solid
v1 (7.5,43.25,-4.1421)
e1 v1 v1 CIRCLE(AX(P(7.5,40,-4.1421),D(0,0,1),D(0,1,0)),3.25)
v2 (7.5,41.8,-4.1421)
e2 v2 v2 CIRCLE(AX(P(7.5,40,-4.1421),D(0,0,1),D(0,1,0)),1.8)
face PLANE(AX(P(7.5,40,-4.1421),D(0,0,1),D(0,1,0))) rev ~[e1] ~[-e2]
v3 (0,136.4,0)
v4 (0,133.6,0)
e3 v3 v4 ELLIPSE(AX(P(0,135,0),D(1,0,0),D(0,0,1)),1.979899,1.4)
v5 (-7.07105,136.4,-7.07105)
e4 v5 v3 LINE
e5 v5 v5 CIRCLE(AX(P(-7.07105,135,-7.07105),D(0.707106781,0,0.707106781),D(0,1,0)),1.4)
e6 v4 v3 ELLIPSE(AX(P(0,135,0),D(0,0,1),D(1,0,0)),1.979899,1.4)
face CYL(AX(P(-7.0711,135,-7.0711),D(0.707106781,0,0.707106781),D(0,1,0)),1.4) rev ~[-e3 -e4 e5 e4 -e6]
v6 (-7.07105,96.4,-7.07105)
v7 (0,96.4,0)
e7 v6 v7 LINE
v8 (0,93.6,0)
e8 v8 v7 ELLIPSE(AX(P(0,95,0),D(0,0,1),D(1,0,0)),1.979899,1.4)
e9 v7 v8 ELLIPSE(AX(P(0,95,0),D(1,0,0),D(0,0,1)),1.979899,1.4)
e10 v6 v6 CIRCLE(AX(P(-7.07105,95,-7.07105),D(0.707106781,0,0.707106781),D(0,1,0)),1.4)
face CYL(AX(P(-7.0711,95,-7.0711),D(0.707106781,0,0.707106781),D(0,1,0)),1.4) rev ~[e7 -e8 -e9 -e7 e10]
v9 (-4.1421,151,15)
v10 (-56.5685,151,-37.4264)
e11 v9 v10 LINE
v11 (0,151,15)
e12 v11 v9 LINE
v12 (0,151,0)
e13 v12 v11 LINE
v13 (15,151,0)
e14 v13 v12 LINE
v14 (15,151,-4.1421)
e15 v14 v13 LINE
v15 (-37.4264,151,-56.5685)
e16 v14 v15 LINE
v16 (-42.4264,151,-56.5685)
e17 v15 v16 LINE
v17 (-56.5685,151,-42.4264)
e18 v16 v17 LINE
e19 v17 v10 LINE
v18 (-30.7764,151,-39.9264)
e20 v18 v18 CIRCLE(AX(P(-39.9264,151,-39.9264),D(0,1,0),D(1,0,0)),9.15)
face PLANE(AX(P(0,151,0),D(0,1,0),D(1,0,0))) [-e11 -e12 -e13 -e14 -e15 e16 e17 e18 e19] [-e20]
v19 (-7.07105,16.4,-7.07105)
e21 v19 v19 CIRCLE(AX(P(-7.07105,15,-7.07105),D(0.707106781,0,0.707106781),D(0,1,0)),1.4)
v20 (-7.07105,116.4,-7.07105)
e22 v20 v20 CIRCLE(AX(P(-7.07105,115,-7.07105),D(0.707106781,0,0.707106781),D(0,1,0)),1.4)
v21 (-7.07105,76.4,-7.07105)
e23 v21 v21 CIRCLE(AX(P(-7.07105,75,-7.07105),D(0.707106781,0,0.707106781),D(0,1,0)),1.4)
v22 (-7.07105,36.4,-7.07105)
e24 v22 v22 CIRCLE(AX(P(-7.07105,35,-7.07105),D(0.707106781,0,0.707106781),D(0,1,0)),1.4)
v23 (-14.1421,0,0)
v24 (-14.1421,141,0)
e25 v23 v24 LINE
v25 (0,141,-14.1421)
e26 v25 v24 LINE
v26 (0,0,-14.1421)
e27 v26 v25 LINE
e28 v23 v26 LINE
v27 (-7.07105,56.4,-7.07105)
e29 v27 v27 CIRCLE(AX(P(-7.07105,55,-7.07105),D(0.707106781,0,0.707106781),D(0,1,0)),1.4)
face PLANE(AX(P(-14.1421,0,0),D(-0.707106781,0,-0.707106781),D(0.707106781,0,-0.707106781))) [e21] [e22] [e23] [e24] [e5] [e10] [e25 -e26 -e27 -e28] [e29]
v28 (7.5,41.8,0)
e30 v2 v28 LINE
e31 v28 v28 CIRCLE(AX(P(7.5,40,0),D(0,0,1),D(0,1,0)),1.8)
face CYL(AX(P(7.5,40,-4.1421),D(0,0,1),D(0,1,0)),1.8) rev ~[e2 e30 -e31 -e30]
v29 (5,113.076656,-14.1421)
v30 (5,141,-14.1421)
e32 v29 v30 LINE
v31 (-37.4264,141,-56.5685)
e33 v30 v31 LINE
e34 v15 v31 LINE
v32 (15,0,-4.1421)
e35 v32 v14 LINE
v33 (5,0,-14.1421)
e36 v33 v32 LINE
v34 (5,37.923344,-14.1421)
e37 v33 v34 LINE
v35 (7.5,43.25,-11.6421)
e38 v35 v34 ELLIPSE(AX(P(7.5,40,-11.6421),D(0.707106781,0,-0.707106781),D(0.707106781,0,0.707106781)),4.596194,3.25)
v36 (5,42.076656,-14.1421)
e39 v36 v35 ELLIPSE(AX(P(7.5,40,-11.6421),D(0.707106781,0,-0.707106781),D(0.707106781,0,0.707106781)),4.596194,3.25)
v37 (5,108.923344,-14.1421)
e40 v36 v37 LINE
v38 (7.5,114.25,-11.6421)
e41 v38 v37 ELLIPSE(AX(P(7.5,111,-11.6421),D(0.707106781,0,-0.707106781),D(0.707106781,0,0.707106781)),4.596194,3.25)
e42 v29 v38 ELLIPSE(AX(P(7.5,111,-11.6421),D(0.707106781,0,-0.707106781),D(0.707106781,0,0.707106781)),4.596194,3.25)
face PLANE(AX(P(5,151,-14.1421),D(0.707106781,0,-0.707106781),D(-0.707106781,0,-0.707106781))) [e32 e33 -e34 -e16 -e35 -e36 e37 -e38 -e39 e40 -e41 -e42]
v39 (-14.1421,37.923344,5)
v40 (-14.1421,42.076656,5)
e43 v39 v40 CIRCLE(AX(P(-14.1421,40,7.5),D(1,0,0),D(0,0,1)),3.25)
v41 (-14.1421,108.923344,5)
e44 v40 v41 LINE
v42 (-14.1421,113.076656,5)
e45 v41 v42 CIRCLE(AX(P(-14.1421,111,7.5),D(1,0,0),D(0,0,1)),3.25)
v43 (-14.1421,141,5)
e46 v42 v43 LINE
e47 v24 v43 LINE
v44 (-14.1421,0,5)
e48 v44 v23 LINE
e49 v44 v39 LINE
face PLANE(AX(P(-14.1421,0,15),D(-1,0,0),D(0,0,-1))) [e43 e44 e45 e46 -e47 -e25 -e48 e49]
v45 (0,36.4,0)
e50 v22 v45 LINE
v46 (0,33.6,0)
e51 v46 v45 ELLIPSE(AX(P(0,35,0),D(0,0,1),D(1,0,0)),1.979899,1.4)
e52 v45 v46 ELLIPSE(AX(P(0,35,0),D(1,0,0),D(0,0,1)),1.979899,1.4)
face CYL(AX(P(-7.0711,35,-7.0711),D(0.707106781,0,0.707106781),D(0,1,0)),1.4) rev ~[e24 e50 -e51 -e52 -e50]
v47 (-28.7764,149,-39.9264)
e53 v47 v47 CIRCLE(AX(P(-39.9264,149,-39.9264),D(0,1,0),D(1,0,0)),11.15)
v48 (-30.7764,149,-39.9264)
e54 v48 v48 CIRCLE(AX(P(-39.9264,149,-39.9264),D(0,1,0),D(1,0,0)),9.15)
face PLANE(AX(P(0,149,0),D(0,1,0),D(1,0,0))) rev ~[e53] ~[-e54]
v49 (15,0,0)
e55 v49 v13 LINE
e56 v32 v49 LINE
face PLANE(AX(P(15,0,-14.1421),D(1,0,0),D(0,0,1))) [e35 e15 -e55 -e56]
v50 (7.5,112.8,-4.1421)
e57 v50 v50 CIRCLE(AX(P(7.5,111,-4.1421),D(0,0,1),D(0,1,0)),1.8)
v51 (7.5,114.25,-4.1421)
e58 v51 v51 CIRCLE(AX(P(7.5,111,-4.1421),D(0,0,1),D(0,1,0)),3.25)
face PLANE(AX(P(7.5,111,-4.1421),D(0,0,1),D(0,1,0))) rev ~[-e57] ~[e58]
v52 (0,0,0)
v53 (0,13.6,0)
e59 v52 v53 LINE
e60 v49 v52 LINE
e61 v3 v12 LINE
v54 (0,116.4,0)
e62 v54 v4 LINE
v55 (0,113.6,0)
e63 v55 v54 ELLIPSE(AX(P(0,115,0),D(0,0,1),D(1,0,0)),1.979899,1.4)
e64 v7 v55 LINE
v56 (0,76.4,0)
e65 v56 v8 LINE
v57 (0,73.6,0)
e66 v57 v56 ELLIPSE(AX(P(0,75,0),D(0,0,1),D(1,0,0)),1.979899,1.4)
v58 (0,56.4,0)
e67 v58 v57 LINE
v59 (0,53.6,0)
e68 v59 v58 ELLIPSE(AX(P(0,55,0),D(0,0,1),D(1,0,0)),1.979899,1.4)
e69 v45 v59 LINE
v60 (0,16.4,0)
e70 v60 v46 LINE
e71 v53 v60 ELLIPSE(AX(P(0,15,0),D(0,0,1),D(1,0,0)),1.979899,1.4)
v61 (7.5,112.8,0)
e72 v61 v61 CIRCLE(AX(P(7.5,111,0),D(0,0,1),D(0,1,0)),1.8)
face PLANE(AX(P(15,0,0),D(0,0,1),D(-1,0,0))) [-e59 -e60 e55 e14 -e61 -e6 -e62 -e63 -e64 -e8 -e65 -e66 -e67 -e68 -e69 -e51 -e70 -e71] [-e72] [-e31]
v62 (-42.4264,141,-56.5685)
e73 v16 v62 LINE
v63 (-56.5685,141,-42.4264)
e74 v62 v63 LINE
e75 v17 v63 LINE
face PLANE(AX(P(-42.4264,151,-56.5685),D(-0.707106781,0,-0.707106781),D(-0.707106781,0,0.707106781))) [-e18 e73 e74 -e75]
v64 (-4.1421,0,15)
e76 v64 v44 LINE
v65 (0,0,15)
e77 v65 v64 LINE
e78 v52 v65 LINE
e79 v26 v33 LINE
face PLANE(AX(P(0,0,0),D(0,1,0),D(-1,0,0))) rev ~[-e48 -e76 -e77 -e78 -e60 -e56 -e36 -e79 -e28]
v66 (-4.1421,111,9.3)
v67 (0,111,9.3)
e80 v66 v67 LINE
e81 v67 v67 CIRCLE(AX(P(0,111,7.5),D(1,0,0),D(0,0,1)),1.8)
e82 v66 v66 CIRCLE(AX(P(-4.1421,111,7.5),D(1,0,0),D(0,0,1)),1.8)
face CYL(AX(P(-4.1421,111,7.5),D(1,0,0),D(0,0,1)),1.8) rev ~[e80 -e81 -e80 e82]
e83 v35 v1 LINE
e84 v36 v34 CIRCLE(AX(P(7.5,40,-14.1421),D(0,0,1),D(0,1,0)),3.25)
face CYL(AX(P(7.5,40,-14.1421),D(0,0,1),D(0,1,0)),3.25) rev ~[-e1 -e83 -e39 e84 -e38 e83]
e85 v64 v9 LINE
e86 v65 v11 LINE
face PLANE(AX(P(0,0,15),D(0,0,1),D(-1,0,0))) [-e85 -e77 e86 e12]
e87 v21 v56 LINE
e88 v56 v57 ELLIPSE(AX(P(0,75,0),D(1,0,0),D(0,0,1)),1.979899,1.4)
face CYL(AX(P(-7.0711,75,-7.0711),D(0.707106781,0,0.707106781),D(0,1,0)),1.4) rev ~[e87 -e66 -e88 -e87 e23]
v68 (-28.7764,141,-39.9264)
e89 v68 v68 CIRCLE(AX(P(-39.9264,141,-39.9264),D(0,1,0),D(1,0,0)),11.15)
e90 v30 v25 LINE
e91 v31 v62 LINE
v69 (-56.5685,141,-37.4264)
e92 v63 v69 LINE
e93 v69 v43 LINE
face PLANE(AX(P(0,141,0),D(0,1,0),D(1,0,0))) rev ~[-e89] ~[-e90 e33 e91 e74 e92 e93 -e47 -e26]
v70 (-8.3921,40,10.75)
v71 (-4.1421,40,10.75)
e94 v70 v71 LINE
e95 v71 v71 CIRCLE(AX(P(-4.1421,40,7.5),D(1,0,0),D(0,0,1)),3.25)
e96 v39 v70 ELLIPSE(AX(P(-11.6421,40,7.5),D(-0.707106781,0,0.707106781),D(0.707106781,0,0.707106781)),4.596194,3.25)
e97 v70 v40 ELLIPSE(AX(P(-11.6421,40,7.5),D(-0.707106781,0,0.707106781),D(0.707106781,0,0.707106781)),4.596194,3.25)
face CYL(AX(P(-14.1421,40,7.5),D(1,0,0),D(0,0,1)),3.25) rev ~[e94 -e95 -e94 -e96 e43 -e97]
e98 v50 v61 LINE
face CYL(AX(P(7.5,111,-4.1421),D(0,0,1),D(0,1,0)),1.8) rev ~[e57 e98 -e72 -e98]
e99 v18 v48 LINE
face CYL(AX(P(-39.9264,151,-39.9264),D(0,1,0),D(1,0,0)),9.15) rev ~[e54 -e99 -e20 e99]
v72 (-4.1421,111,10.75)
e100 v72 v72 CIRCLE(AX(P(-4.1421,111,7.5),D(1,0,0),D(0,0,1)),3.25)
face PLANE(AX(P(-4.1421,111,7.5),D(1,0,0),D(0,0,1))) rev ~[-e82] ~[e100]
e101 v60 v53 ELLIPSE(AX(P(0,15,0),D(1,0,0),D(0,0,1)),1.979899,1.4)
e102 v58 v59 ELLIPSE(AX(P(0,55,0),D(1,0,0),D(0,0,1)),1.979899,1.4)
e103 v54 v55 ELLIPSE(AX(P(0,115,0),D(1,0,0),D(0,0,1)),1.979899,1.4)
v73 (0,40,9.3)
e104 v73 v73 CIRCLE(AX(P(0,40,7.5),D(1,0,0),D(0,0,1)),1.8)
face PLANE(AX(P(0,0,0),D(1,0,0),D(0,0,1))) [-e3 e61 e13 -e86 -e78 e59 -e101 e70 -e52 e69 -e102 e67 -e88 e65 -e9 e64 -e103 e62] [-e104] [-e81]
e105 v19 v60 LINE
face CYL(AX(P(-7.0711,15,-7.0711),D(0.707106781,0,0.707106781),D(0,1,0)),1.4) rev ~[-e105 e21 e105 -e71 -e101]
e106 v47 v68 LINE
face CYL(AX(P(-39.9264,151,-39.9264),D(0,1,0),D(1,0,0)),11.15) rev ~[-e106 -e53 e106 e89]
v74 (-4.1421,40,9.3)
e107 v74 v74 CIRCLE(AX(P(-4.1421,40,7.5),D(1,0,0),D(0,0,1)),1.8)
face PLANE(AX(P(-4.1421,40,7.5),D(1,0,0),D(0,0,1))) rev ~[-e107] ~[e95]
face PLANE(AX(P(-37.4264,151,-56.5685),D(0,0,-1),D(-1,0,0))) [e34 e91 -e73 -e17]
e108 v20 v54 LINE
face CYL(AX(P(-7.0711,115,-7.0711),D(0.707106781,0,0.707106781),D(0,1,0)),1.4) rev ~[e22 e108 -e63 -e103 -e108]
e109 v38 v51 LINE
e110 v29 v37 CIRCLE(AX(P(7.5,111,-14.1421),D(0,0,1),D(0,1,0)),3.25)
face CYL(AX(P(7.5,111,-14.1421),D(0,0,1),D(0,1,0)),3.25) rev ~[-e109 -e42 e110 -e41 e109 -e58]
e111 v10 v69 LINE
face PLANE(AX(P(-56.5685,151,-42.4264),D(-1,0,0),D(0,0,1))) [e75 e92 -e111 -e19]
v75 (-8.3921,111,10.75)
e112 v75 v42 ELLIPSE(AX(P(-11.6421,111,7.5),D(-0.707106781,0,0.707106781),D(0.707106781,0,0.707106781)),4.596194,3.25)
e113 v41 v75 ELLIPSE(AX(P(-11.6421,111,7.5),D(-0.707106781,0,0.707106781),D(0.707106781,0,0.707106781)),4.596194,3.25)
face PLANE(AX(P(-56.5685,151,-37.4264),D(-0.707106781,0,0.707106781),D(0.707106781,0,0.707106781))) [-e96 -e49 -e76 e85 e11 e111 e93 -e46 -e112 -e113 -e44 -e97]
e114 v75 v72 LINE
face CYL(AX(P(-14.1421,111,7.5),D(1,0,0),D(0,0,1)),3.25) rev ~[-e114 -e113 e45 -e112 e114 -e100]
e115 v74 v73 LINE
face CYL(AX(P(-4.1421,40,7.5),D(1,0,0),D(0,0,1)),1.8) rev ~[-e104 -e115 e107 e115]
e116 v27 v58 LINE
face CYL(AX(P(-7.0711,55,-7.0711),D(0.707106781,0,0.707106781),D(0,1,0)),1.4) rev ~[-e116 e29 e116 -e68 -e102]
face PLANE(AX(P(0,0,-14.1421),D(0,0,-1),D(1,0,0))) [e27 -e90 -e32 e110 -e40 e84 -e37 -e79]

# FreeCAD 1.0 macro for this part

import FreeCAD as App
import Part
import Sketcher
Q = App.Units.Quantity


def edges_at(feature, points):
    """Names of the edges that pass closest to the given points."""
    edges = feature.Shape.Edges
    near = lambda p: min(range(len(edges)), key=lambda i: edges[i].distToShape(Part.Vertex(*p))[0])
    return sorted({f"Edge{near(p) + 1}" for p in points})


def add_polygon(sketch, points):
    """Adds a closed chain of lines whose ends are joined by coincident constraints."""
    first, n = sketch.GeometryCount, len(points)
    for a, b in zip(points, points[1:] + points[:1]):
        sketch.addGeometry(Part.LineSegment(App.Vector(*a, 0), App.Vector(*b, 0)), False)
    for i in range(n):
        sketch.addConstraint(Sketcher.Constraint("Coincident", first + i, 2, first + (i + 1) % n, 1))

doc = App.newDocument("Part")
params = doc.addObject("Spreadsheet::Sheet", "Params")
for row, (alias, value) in enumerate([
    ("sketch1_width", "15 mm"),
    ("sketch1_length", "20 mm"),
    ("pad1_length", "151 mm"),
    ("chamfer_size", "10 mm"),
    ("sketch2_diameter", "22.3 mm"),
    ("sketch2_length", "60 mm"),
    ("sketch2_width", "5 mm"),
    ("sketch2_length2", "20 mm"),
    ("pad2_length", "10 mm"),
    ("sketch3_diameter", "22.3 mm"),
    ("sketch3_diameter2", "18.3 mm"),
    ("pad3_length", "2 mm"),
    ("sketch4_diameter", "3.6 mm"),
    ("hole_diameter", "3.6 mm"),
    ("hole_cbore_diameter", "6.5 mm"),
    ("hole_cbore_depth", "10 mm"),
    ("sketch5_diameter", "3.6 mm"),
    ("hole2_diameter", "3.6 mm"),
    ("hole2_cbore_diameter", "6.5 mm"),
    ("hole2_cbore_depth", "10 mm"),
    ("sketch6_diameter", "2.8 mm"),
    ("hole3_diameter", "2.8 mm"),
], start=1):
    params.set(f"A{row}", alias)
    params.set(f"B{row}", "=" + value)
    params.setAlias(f"B{row}", alias)

body = doc.addObject("PartDesign::Body", "Body")

# Sketch on XZ plane
sketch1 = doc.addObject("Sketcher::SketchObject", "Sketch")
body.addObject(sketch1)
sketch1.AttachmentSupport = (doc.XZ_Plane, [""])
sketch1.MapMode = "FlatFace"
add_polygon(sketch1, [(0, 15), (0, 0), (15, 0), (15, -14), (0, -14), (-14, 0), (-14, 15)])  # lines 0-6
sketch1.addConstraint([
    Sketcher.Constraint("Vertical", 0),
    Sketcher.Constraint("Horizontal", 1),
    Sketcher.Constraint("Vertical", 2),
    Sketcher.Constraint("Horizontal", 3),
    Sketcher.Constraint("Vertical", 5),
    Sketcher.Constraint("Horizontal", 6),
    Sketcher.Constraint("Coincident", 0, 2, -1, 1),
    Sketcher.Constraint("PointOnObject", 3, 2, -2),
    Sketcher.Constraint("PointOnObject", 4, 2, -1),
    Sketcher.Constraint("Equal", 3, 0),
    Sketcher.Constraint("Equal", 6, 2),
    Sketcher.Constraint("DistanceX", 1, 1, 1, 2, 15.0),
    Sketcher.Constraint("Distance", 4, 20.0),
])
sketch1.setExpression("Constraints[18]", "Params.sketch1_width")
sketch1.setExpression("Constraints[19]", "Params.sketch1_length")
pad1 = doc.addObject("PartDesign::Pad", "Pad")
body.addObject(pad1)
pad1.Profile = sketch1
pad1.setExpression("Length", "Params.pad1_length")
pad1.Reversed = True
doc.recompute()

chamfer = doc.addObject("PartDesign::Chamfer", "Chamfer")
body.addObject(chamfer)
chamfer.Base = (pad1, edges_at(pad1, [(-14.142, 75.5, 15), (15, 75.5, -14.142)]))
chamfer.setExpression("Size", "Params.chamfer_size")

# Sketch on XZ plane
sketch2 = doc.addObject("Sketcher::SketchObject", "Sketch001")
body.addObject(sketch2)
sketch2.AttachmentSupport = (doc.XZ_Plane, [""])
sketch2.MapMode = "FlatFace"
sketch2.AttachmentOffset = App.Placement(App.Vector(0, 0, -151), App.Rotation())
add_polygon(sketch2, [(0, -14), (5, -14), (-37, -57), (-42, -57), (-57, -42), (-57, -37), (-14, 5), (-14, 0)])  # lines 0-7
sketch2.addGeometry(Part.Circle(App.Vector(-40, -40, 0), App.Vector(0, 0, 1), 11), False)  # 8
sketch2.addConstraint([
    Sketcher.Constraint("Horizontal", 0),
    Sketcher.Constraint("Horizontal", 2),
    Sketcher.Constraint("Vertical", 4),
    Sketcher.Constraint("Vertical", 6),
    Sketcher.Constraint("PointOnObject", 6, 2, -1),
    Sketcher.Constraint("PointOnObject", 7, 2, -2),
    Sketcher.Constraint("Perpendicular", 1, 3),
    Sketcher.Constraint("Perpendicular", 3, 5),
    Sketcher.Constraint("Perpendicular", 5, 7),
    Sketcher.Constraint("Equal", 0, 2),
    Sketcher.Constraint("Equal", 2, 4),
    Sketcher.Constraint("Equal", 4, 6),
    Sketcher.Constraint("Diameter", 8, 22.3),
    Sketcher.Constraint("Distance", 1, 60.0),
    Sketcher.Constraint("DistanceX", 0, 1, 0, 2, 5.0),
    Sketcher.Constraint("Angle", 1, Q("-135 deg")),
    Sketcher.Constraint("Distance", 3, 20.0),
    Sketcher.Constraint("DistanceX", 8, 3, 1, 2, 2.5),
    Sketcher.Constraint("DistanceY", 3, 2, 8, 3, 2.5),
])
sketch2.setExpression("Constraints[20]", "Params.sketch2_diameter")
sketch2.setExpression("Constraints[21]", "Params.sketch2_length")
sketch2.setExpression("Constraints[22]", "Params.sketch2_width")
sketch2.setExpression("Constraints[24]", "Params.sketch2_length2")
pad2 = doc.addObject("PartDesign::Pad", "Pad001")
body.addObject(pad2)
pad2.Profile = sketch2
pad2.setExpression("Length", "Params.pad2_length")

# Sketch on XZ plane
sketch3 = doc.addObject("Sketcher::SketchObject", "Sketch002")
body.addObject(sketch3)
sketch3.AttachmentSupport = (doc.XZ_Plane, [""])
sketch3.MapMode = "FlatFace"
sketch3.AttachmentOffset = App.Placement(App.Vector(0, 0, -151), App.Rotation())
sketch3.addGeometry([
    Part.Circle(App.Vector(-40, -40, 0), App.Vector(0, 0, 1), 11),
    Part.Circle(App.Vector(-40, -40, 0), App.Vector(0, 0, 1), 9),
], False)
sketch3.addConstraint([
    Sketcher.Constraint("Coincident", 1, 3, 0, 3),
    Sketcher.Constraint("Diameter", 0, 22.3),
    Sketcher.Constraint("Diameter", 1, 18.3),
    Sketcher.Constraint("DistanceX", 0, 3, -1, 1, 39.9264),
    Sketcher.Constraint("DistanceY", 0, 3, -1, 1, 39.9264),
])
sketch3.setExpression("Constraints[1]", "Params.sketch3_diameter")
sketch3.setExpression("Constraints[2]", "Params.sketch3_diameter2")
pad3 = doc.addObject("PartDesign::Pad", "Pad002")
body.addObject(pad3)
pad3.Profile = sketch3
pad3.setExpression("Length", "Params.pad3_length")

# Sketch on YZ plane
sketch4 = doc.addObject("Sketcher::SketchObject", "Sketch003")
body.addObject(sketch4)
sketch4.AttachmentSupport = (doc.YZ_Plane, [""])
sketch4.MapMode = "FlatFace"
sketch4.AttachmentOffset = App.Placement(App.Vector(0, 0, -14.1421), App.Rotation())
sketch4.addGeometry([
    Part.Circle(App.Vector(40, 7.5, 0), App.Vector(0, 0, 1), 1.8),
    Part.Circle(App.Vector(111, 7.5, 0), App.Vector(0, 0, 1), 1.8),
], False)
sketch4.addConstraint([
    Sketcher.Constraint("Equal", 0, 1),
    Sketcher.Constraint("Horizontal", 0, 3, 1, 3),
    Sketcher.Constraint("Diameter", 0, 3.6),
    Sketcher.Constraint("DistanceX", -1, 1, 0, 3, 40.0),
    Sketcher.Constraint("DistanceX", -1, 1, 1, 3, 111.0),
    Sketcher.Constraint("DistanceY", -1, 1, 0, 3, 7.5),
])
sketch4.setExpression("Constraints[2]", "Params.sketch4_diameter")
doc.recompute()
hole = doc.addObject("PartDesign::Hole", "Hole")
body.addObject(hole)
hole.Profile = sketch4
hole.ThreadType = "None"
hole.setExpression("Diameter", "Params.hole_diameter")
hole.DepthType = "ThroughAll"
hole.HoleCutType = "Counterbore"
hole.setExpression("HoleCutDiameter", "Params.hole_cbore_diameter")
hole.setExpression("HoleCutDepth", "Params.hole_cbore_depth")
hole.Reversed = True

# Sketch on XY plane
sketch5 = doc.addObject("Sketcher::SketchObject", "Sketch004")
body.addObject(sketch5)
sketch5.AttachmentSupport = (doc.XY_Plane, [""])
sketch5.MapMode = "FlatFace"
sketch5.AttachmentOffset = App.Placement(App.Vector(0, 0, -14.1421), App.Rotation())
sketch5.addGeometry([
    Part.Circle(App.Vector(7.5, 40, 0), App.Vector(0, 0, 1), 1.8),
    Part.Circle(App.Vector(7.5, 111, 0), App.Vector(0, 0, 1), 1.8),
], False)
sketch5.addConstraint([
    Sketcher.Constraint("Equal", 0, 1),
    Sketcher.Constraint("Vertical", 0, 3, 1, 3),
    Sketcher.Constraint("Diameter", 0, 3.6),
    Sketcher.Constraint("DistanceY", -1, 1, 0, 3, 40.0),
    Sketcher.Constraint("DistanceY", -1, 1, 1, 3, 111.0),
    Sketcher.Constraint("DistanceX", -1, 1, 0, 3, 7.5),
])
sketch5.setExpression("Constraints[2]", "Params.sketch5_diameter")
doc.recompute()
hole2 = doc.addObject("PartDesign::Hole", "Hole001")
body.addObject(hole2)
hole2.Profile = sketch5
hole2.ThreadType = "None"
hole2.setExpression("Diameter", "Params.hole2_diameter")
hole2.DepthType = "ThroughAll"
hole2.HoleCutType = "Counterbore"
hole2.setExpression("HoleCutDiameter", "Params.hole2_cbore_diameter")
hole2.setExpression("HoleCutDepth", "Params.hole2_cbore_depth")
hole2.Reversed = True

# Sketch on an angled plane
sketch6 = doc.addObject("Sketcher::SketchObject", "Sketch005")
body.addObject(sketch6)
sketch6.Placement = App.Placement(App.Vector(-7.0711, 0, -7.0711), App.Rotation(App.Vector(-0.707106781, 0, 0.707106781), App.Vector(0, 0.999999999, 0), App.Vector(-0.707106781, 0, -0.707106781), "ZXY"))
sketch6.addGeometry([
    Part.Circle(App.Vector(0, 15, 0), App.Vector(0, 0, 1), 1.4),  # 0
    Part.Circle(App.Vector(0, 35, 0), App.Vector(0, 0, 1), 1.4),  # 1
    Part.Circle(App.Vector(0, 55, 0), App.Vector(0, 0, 1), 1.4),  # 2
    Part.Circle(App.Vector(0, 75, 0), App.Vector(0, 0, 1), 1.4),  # 3
    Part.Circle(App.Vector(0, 95, 0), App.Vector(0, 0, 1), 1.4),  # 4
    Part.Circle(App.Vector(0, 115, 0), App.Vector(0, 0, 1), 1.4),  # 5
    Part.Circle(App.Vector(0, 135, 0), App.Vector(0, 0, 1), 1.4),  # 6
], False)
sketch6.addConstraint([
    Sketcher.Constraint("Equal", 0, 1),
    Sketcher.Constraint("Equal", 1, 2),
    Sketcher.Constraint("Equal", 2, 3),
    Sketcher.Constraint("Equal", 3, 4),
    Sketcher.Constraint("Equal", 4, 5),
    Sketcher.Constraint("Equal", 5, 6),
    Sketcher.Constraint("PointOnObject", 0, 3, -2),
    Sketcher.Constraint("PointOnObject", 1, 3, -2),
    Sketcher.Constraint("PointOnObject", 2, 3, -2),
    Sketcher.Constraint("PointOnObject", 3, 3, -2),
    Sketcher.Constraint("PointOnObject", 4, 3, -2),
    Sketcher.Constraint("PointOnObject", 5, 3, -2),
    Sketcher.Constraint("PointOnObject", 6, 3, -2),
    Sketcher.Constraint("Diameter", 0, 2.8),
    Sketcher.Constraint("DistanceY", -1, 1, 0, 3, 15.0),
    Sketcher.Constraint("DistanceY", -1, 1, 1, 3, 35.0),
    Sketcher.Constraint("DistanceY", -1, 1, 2, 3, 55.0),
    Sketcher.Constraint("DistanceY", -1, 1, 3, 3, 75.0),
    Sketcher.Constraint("DistanceY", -1, 1, 4, 3, 95.0),
    Sketcher.Constraint("DistanceY", -1, 1, 5, 3, 115.0),
    Sketcher.Constraint("DistanceY", -1, 1, 6, 3, 135.0),
])
sketch6.setExpression("Constraints[13]", "Params.sketch6_diameter")
doc.recompute()
hole3 = doc.addObject("PartDesign::Hole", "Hole002")
body.addObject(hole3)
hole3.Profile = sketch6
hole3.ThreadType = "None"
hole3.setExpression("Diameter", "Params.hole3_diameter")
hole3.DepthType = "ThroughAll"

doc.recompute()
